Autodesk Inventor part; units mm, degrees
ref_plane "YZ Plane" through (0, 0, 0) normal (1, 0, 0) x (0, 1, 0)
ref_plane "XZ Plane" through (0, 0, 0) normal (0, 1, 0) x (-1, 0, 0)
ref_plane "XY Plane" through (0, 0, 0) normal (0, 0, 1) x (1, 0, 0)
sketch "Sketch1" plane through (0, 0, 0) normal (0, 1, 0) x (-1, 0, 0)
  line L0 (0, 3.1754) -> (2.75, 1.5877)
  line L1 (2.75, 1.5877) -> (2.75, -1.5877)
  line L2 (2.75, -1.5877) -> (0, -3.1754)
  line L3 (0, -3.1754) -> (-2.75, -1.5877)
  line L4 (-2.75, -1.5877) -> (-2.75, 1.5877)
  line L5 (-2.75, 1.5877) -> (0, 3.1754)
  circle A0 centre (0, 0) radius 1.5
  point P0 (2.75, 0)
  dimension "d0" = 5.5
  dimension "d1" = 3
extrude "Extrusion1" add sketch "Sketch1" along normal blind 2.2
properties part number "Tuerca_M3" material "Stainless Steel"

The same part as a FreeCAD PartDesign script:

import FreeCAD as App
import Part
import Sketcher

V = App.Vector
Q = App.Units.Quantity


def add_polygon(sketch, points):
    """Adds a closed chain of lines whose ends are joined by coincident constraints."""
    first, n = sketch.GeometryCount, len(points)
    for a, b in zip(points, points[1:] + points[:1]):
        sketch.addGeometry(Part.LineSegment(App.Vector(*a, 0), App.Vector(*b, 0)), False)
    for i in range(n):
        sketch.addConstraint(Sketcher.Constraint("Coincident", first + i, 2, first + (i + 1) % n, 1))

doc = App.newDocument("Part")
body = doc.addObject("PartDesign::Body", "Body")

# Sketch on XZ plane
sketch1 = body.newObject("Sketcher::SketchObject", "Sketch")
sketch1.AttachmentSupport = (doc.getObject("XZ_Plane"), [""])
sketch1.MapMode = "FlatFace"
add_polygon(sketch1, [(-2.75, 1.5877), (0, 3.1754), (2.75, 1.5877), (2.75, -1.5877), (0, -3.1754), (-2.75, -1.5877)])  # lines 0-5
sketch1.addGeometry(Part.Circle(V(0, 0, 0), V(0, 0, 1), 1.5), False)  # 6
sketch1.addConstraint(Sketcher.Constraint("Vertical", 2))
sketch1.addConstraint(Sketcher.Constraint("Vertical", 5))
sketch1.addConstraint(Sketcher.Constraint("Coincident", 6, 3, -1, 1))
sketch1.addConstraint(Sketcher.Constraint("Symmetric", 0, 2, 3, 2, -1, 1))
sketch1.addConstraint(Sketcher.Constraint("Symmetric", 1, 2, 4, 2, -1, 1))
sketch1.addConstraint(Sketcher.Constraint("PointOnObject", 0, 2, -2))
sketch1.addConstraint(Sketcher.Constraint("Parallel", 0, 3))
sketch1.addConstraint(Sketcher.Constraint("Horizontal", 2, 2, 4, 2))
sketch1.addConstraint(Sketcher.Constraint("Diameter", 6, 3.0))
sketch1.addConstraint(Sketcher.Constraint("DistanceX", 4, 2, 2, 2, 5.5))
sketch1.addConstraint(Sketcher.Constraint("Angle", 0, Q("29.9998 deg")))
sketch1.addConstraint(Sketcher.Constraint("DistanceY", 2, 2, 2, 1, 3.1754))
pad1 = body.newObject("PartDesign::Pad", "Pad")
pad1.Profile = sketch1
pad1.Length = 2.2
pad1.Reversed = True

doc.recompute()
